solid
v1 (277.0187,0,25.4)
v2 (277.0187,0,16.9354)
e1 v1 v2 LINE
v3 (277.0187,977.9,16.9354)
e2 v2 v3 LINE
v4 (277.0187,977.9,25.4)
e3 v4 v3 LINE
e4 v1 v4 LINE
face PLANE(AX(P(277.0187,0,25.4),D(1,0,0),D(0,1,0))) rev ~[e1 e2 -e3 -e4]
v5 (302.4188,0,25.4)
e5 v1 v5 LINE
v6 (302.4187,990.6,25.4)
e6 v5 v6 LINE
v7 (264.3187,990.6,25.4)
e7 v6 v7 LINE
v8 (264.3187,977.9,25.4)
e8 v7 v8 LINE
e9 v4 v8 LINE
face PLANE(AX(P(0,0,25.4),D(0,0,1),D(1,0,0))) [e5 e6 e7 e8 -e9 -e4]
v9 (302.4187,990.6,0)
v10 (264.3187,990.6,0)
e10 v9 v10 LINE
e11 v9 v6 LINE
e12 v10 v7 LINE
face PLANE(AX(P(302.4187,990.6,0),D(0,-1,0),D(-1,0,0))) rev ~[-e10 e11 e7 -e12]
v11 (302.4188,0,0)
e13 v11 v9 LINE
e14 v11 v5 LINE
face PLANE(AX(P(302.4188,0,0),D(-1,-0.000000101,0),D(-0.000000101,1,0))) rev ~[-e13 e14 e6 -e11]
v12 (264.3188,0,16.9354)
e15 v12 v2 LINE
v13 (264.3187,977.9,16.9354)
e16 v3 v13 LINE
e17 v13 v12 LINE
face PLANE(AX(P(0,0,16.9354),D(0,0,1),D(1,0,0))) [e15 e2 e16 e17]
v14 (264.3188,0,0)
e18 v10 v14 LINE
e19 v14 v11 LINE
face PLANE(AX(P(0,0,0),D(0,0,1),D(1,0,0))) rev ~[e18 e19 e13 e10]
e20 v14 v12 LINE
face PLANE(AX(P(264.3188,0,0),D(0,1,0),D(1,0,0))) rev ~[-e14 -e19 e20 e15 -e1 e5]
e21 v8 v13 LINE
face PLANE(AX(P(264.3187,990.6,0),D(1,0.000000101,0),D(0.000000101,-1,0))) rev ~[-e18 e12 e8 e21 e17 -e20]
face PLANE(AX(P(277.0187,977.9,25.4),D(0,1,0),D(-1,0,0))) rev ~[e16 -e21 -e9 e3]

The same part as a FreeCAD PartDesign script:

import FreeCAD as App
import Part
import Sketcher
from FreeCAD import Vector
Q = App.Units.Quantity


def add_polygon(sketch, points):
    """Adds a closed chain of lines whose ends are joined by coincident constraints."""
    first, n = sketch.GeometryCount, len(points)
    for a, b in zip(points, points[1:] + points[:1]):
        sketch.addGeometry(Part.LineSegment(App.Vector(*a, 0), App.Vector(*b, 0)), False)
    for i in range(n):
        sketch.addConstraint(Sketcher.Constraint("Coincident", first + i, 2, first + (i + 1) % n, 1))

doc = App.newDocument("Part")
body = doc.addObject("PartDesign::Body", "Body")

sketch1 = body.newObject("Sketcher::SketchObject", "Sketch")
sketch1.AttachmentSupport = (doc.getObject("XY_Plane"), [""])
sketch1.MapMode = "FlatFace"
add_polygon(sketch1, [(302, 0), (302, 991), (264, 991), (264, 0)])
sketch1.addConstraint([
    Sketcher.Constraint("Vertical", 0),
    Sketcher.Constraint("Horizontal", 1),
    Sketcher.Constraint("Vertical", 2),
    Sketcher.Constraint("Horizontal", 3),
    Sketcher.Constraint("PointOnObject", 2, 2, -1),
    Sketcher.Constraint("DistanceY", 0, 1, 0, 2, Q("39 in")),
    Sketcher.Constraint("DistanceX", 1, 2, 1, 1, Q("1.5 in")),
    Sketcher.Constraint("DistanceX", -1, 1, 0, 2, Q("11.906248 in")),
])
pad1 = body.newObject("PartDesign::Pad", "Pad")
pad1.Profile = sketch1
pad1.Length = Q("1 in")

sketch2 = body.newObject("Sketcher::SketchObject", "Sketch001")
sketch2.AttachmentSupport = (doc.getObject("XY_Plane"), [""])
sketch2.MapMode = "FlatFace"
sketch2.AttachmentOffset = App.Placement(Vector(0, 0, 1 * 25.4), App.Rotation())
add_polygon(sketch2, [(264, 978), (264, 0), (277, 0), (277, 978)])
sketch2.addConstraint([
    Sketcher.Constraint("Vertical", 0),
    Sketcher.Constraint("Horizontal", 1),
    Sketcher.Constraint("Vertical", 2),
    Sketcher.Constraint("Horizontal", 3),
    Sketcher.Constraint("PointOnObject", 0, 2, -1),
    Sketcher.Constraint("DistanceX", 1, 1, 1, 2, Q("0.5 in")),
    Sketcher.Constraint("DistanceY", 0, 2, 0, 1, Q("38.5 in")),
    Sketcher.Constraint("DistanceX", -1, 1, 0, 2, Q("10.406252 in")),
])
pocket1 = body.newObject("PartDesign::Pocket", "Pocket")
pocket1.Profile = sketch2
pocket1.Length = 8.4646

doc.recompute()
